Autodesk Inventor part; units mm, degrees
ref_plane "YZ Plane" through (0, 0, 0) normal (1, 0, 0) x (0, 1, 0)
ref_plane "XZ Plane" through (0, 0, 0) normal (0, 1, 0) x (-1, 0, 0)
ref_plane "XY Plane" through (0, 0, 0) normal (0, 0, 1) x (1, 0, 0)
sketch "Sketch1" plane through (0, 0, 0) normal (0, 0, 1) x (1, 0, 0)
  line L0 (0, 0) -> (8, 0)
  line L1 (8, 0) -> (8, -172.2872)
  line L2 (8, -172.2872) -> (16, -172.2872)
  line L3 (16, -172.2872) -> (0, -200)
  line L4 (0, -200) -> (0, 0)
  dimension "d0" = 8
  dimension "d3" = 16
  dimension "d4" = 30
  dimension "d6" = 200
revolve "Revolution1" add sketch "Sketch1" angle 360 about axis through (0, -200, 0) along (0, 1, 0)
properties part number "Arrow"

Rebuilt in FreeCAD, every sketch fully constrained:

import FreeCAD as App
import Part
import Sketcher

V = App.Vector
Q = App.Units.Quantity

doc = App.newDocument("Part")
body = doc.addObject("PartDesign::Body", "Body")

# Sketch on XY plane
sketch1 = body.newObject("Sketcher::SketchObject", "Sketch")
sketch1.AttachmentSupport = (doc.getObject("XY_Plane"), [""])
sketch1.MapMode = "FlatFace"
sketch1.addGeometry([
    Part.LineSegment(V(8, 0, 0), V(0, 0, 0)),  # 0
    Part.LineSegment(V(0, 0, 0), V(0, -200, 0)),  # 1
    Part.LineSegment(V(0, -200, 0), V(16, -172, 0)),  # 2
    Part.LineSegment(V(16, -172, 0), V(8, -172, 0)),  # 3
    Part.LineSegment(V(8, -172, 0), V(8, 0, 0)),  # 4
], False)
sketch1.addConstraint([
    Sketcher.Constraint("Coincident", 0, 2, 1, 1),
    Sketcher.Constraint("Coincident", 1, 2, 2, 1),
    Sketcher.Constraint("Coincident", 2, 2, 3, 1),
    Sketcher.Constraint("Coincident", 3, 2, 4, 1),
    Sketcher.Constraint("Coincident", 4, 2, 0, 1),
    Sketcher.Constraint("Horizontal", 0),
    Sketcher.Constraint("Vertical", 1),
    Sketcher.Constraint("Horizontal", 3),
    Sketcher.Constraint("Vertical", 4),
    Sketcher.Constraint("Coincident", 0, 2, -1, 1),
    Sketcher.Constraint("Equal", 0, 3),
    Sketcher.Constraint("DistanceX", 0, 2, 0, 1, Q("8 mm")),
    Sketcher.Constraint("DistanceY", 1, 2, 1, 1, Q("200 mm")),
    Sketcher.Constraint("Angle", 2, Q("60 deg")),
])
revolution = body.newObject("PartDesign::Revolution", "Revolution")
revolution.Profile = sketch1
revolution.ReferenceAxis = (sketch1, ["V_Axis"])
revolution.Angle = 360

doc.recompute()
